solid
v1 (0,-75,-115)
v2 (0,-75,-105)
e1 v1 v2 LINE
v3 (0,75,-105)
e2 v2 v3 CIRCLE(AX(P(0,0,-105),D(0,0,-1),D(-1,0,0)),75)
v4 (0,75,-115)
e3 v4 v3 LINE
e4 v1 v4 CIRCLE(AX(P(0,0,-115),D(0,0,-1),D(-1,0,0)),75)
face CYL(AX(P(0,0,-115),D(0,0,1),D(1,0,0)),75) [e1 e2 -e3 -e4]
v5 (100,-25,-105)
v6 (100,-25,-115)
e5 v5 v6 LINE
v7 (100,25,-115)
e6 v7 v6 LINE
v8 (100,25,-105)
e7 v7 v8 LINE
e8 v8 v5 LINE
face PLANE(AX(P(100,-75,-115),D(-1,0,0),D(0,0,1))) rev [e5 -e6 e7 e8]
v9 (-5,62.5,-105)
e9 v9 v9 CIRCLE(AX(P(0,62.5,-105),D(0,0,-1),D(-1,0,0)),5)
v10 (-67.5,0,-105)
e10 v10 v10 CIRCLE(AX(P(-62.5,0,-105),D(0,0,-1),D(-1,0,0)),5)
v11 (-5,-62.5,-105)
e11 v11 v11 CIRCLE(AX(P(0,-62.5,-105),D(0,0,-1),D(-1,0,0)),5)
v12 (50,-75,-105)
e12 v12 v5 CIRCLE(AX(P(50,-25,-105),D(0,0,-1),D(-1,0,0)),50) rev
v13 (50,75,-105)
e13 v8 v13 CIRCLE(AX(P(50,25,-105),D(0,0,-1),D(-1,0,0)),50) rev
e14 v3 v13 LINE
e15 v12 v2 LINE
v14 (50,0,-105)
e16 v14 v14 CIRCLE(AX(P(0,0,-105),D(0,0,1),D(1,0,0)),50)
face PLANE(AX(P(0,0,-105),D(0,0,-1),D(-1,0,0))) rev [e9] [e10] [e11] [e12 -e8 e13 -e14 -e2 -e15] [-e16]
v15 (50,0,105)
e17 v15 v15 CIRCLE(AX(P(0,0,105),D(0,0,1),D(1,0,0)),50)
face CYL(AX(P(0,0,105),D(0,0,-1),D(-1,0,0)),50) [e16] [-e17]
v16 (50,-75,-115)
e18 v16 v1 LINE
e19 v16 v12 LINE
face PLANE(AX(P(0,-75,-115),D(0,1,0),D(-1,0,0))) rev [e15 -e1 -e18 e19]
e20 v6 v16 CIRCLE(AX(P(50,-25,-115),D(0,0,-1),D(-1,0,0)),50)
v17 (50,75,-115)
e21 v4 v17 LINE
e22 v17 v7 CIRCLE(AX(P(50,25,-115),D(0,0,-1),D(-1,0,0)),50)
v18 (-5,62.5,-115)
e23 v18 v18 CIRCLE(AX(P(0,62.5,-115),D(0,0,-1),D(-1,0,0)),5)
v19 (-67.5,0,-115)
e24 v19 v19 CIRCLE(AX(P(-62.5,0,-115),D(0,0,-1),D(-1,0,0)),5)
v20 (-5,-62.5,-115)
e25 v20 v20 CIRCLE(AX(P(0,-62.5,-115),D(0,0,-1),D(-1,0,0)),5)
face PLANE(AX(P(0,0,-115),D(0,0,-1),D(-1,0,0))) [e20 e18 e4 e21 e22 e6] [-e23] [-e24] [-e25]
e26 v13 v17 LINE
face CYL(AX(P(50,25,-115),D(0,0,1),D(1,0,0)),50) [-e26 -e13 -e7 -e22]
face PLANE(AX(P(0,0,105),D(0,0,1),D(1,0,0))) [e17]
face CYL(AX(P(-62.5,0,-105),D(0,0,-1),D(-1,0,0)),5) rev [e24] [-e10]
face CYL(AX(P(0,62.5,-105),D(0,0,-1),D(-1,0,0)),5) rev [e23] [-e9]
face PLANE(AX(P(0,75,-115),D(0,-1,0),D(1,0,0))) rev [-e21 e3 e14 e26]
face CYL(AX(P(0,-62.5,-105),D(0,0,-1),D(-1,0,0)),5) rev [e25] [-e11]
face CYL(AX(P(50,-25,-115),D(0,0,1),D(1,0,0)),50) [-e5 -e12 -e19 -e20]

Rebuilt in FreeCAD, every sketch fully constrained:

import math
import FreeCAD as App
import Part
import Sketcher


def edges_at(feature, points):
    """Names of the edges that pass closest to the given points."""
    edges = feature.Shape.Edges
    near = lambda p: min(range(len(edges)), key=lambda i: edges[i].distToShape(Part.Vertex(*p))[0])
    return sorted({f"Edge{near(p) + 1}" for p in points})

doc = App.newDocument("Part")
body = doc.addObject("PartDesign::Body", "Body")

sketch1 = body.newObject("Sketcher::SketchObject", "Sketch")
sketch1.AttachmentSupport = (doc.getObject("XY_Plane"), [""])
sketch1.MapMode = "FlatFace"
sketch1.addGeometry(Part.Circle(App.Vector(0, 0, 0), App.Vector(0, 0, 1), 50), False)
sketch1.addConstraint([
    Sketcher.Constraint("Coincident", 0, 3, -1, 1),
    Sketcher.Constraint("Diameter", 0, 100.0),
])
pad1 = body.newObject("PartDesign::Pad", "Pad")
pad1.Profile = sketch1
pad1.Length = 210
pad1.Midplane = True

sketch2 = body.newObject("Sketcher::SketchObject", "Sketch001")
sketch2.AttachmentSupport = (doc.getObject("XY_Plane"), [""])
sketch2.MapMode = "FlatFace"
sketch2.AttachmentOffset = App.Placement(App.Vector(0, 0, -105), App.Rotation())
sketch2.addGeometry([
    Part.LineSegment(App.Vector(100, -75, 0), App.Vector(0, -75, 0)),
    Part.ArcOfCircle(Part.Circle(App.Vector(0, 0, 0), App.Vector(0, 0, 1), 75), math.radians(90), math.radians(270)),
    Part.LineSegment(App.Vector(0, 75, 0), App.Vector(100, 75, 0)),
    Part.LineSegment(App.Vector(100, 75, 0), App.Vector(100, -75, 0)),
], False)
sketch2.addConstraint([
    Sketcher.Constraint("Tangent", 0, 2, 1, 2),
    Sketcher.Constraint("Tangent", 1, 1, 2, 1),
    Sketcher.Constraint("Coincident", 2, 2, 3, 1),
    Sketcher.Constraint("Coincident", 3, 2, 0, 1),
    Sketcher.Constraint("Horizontal", 0),
    Sketcher.Constraint("Horizontal", 2),
    Sketcher.Constraint("Vertical", 3),
    Sketcher.Constraint("Coincident", 1, 3, -1, 1),
    Sketcher.Constraint("Radius", 1, 75.0),
    Sketcher.Constraint("DistanceX", 0, 2, 0, 1, 100.0),
])
pad2 = body.newObject("PartDesign::Pad", "Pad001")
pad2.Profile = sketch2
pad2.Length = 10
pad2.Reversed = True

sketch3 = body.newObject("Sketcher::SketchObject", "Sketch002")
sketch3.AttachmentSupport = (doc.getObject("XY_Plane"), [""])
sketch3.MapMode = "FlatFace"
sketch3.AttachmentOffset = App.Placement(App.Vector(0, 0, -115), App.Rotation())
sketch3.addGeometry([
    Part.Circle(App.Vector(0, 62, 0), App.Vector(0, 0, 1), 5),
    Part.Circle(App.Vector(0, -62, 0), App.Vector(0, 0, 1), 5),
    Part.Circle(App.Vector(-62, 0, 0), App.Vector(0, 0, 1), 5),
], False)
sketch3.addConstraint([
    Sketcher.Constraint("Equal", 0, 1),
    Sketcher.Constraint("Equal", 1, 2),
    Sketcher.Constraint("Symmetric", 0, 3, 1, 3, -1, 1),
    Sketcher.Constraint("PointOnObject", 0, 3, -2),
    Sketcher.Constraint("PointOnObject", 2, 3, -1),
    Sketcher.Constraint("Diameter", 0, 10.0),
    Sketcher.Constraint("DistanceY", 1, 3, 0, 3, 125.0),
    Sketcher.Constraint("DistanceX", 2, 3, -1, 1, 62.5),
])
pocket1 = body.newObject("PartDesign::Pocket", "Pocket")
pocket1.Profile = sketch3
pocket1.Length = 10
pocket1.Reversed = True
doc.recompute()

fillet = body.newObject("PartDesign::Fillet", "Fillet")
fillet.Base = (pocket1, edges_at(pocket1, [(100, 75, -110), (100, -75, -110)]))
fillet.Radius = 50

doc.recompute()
